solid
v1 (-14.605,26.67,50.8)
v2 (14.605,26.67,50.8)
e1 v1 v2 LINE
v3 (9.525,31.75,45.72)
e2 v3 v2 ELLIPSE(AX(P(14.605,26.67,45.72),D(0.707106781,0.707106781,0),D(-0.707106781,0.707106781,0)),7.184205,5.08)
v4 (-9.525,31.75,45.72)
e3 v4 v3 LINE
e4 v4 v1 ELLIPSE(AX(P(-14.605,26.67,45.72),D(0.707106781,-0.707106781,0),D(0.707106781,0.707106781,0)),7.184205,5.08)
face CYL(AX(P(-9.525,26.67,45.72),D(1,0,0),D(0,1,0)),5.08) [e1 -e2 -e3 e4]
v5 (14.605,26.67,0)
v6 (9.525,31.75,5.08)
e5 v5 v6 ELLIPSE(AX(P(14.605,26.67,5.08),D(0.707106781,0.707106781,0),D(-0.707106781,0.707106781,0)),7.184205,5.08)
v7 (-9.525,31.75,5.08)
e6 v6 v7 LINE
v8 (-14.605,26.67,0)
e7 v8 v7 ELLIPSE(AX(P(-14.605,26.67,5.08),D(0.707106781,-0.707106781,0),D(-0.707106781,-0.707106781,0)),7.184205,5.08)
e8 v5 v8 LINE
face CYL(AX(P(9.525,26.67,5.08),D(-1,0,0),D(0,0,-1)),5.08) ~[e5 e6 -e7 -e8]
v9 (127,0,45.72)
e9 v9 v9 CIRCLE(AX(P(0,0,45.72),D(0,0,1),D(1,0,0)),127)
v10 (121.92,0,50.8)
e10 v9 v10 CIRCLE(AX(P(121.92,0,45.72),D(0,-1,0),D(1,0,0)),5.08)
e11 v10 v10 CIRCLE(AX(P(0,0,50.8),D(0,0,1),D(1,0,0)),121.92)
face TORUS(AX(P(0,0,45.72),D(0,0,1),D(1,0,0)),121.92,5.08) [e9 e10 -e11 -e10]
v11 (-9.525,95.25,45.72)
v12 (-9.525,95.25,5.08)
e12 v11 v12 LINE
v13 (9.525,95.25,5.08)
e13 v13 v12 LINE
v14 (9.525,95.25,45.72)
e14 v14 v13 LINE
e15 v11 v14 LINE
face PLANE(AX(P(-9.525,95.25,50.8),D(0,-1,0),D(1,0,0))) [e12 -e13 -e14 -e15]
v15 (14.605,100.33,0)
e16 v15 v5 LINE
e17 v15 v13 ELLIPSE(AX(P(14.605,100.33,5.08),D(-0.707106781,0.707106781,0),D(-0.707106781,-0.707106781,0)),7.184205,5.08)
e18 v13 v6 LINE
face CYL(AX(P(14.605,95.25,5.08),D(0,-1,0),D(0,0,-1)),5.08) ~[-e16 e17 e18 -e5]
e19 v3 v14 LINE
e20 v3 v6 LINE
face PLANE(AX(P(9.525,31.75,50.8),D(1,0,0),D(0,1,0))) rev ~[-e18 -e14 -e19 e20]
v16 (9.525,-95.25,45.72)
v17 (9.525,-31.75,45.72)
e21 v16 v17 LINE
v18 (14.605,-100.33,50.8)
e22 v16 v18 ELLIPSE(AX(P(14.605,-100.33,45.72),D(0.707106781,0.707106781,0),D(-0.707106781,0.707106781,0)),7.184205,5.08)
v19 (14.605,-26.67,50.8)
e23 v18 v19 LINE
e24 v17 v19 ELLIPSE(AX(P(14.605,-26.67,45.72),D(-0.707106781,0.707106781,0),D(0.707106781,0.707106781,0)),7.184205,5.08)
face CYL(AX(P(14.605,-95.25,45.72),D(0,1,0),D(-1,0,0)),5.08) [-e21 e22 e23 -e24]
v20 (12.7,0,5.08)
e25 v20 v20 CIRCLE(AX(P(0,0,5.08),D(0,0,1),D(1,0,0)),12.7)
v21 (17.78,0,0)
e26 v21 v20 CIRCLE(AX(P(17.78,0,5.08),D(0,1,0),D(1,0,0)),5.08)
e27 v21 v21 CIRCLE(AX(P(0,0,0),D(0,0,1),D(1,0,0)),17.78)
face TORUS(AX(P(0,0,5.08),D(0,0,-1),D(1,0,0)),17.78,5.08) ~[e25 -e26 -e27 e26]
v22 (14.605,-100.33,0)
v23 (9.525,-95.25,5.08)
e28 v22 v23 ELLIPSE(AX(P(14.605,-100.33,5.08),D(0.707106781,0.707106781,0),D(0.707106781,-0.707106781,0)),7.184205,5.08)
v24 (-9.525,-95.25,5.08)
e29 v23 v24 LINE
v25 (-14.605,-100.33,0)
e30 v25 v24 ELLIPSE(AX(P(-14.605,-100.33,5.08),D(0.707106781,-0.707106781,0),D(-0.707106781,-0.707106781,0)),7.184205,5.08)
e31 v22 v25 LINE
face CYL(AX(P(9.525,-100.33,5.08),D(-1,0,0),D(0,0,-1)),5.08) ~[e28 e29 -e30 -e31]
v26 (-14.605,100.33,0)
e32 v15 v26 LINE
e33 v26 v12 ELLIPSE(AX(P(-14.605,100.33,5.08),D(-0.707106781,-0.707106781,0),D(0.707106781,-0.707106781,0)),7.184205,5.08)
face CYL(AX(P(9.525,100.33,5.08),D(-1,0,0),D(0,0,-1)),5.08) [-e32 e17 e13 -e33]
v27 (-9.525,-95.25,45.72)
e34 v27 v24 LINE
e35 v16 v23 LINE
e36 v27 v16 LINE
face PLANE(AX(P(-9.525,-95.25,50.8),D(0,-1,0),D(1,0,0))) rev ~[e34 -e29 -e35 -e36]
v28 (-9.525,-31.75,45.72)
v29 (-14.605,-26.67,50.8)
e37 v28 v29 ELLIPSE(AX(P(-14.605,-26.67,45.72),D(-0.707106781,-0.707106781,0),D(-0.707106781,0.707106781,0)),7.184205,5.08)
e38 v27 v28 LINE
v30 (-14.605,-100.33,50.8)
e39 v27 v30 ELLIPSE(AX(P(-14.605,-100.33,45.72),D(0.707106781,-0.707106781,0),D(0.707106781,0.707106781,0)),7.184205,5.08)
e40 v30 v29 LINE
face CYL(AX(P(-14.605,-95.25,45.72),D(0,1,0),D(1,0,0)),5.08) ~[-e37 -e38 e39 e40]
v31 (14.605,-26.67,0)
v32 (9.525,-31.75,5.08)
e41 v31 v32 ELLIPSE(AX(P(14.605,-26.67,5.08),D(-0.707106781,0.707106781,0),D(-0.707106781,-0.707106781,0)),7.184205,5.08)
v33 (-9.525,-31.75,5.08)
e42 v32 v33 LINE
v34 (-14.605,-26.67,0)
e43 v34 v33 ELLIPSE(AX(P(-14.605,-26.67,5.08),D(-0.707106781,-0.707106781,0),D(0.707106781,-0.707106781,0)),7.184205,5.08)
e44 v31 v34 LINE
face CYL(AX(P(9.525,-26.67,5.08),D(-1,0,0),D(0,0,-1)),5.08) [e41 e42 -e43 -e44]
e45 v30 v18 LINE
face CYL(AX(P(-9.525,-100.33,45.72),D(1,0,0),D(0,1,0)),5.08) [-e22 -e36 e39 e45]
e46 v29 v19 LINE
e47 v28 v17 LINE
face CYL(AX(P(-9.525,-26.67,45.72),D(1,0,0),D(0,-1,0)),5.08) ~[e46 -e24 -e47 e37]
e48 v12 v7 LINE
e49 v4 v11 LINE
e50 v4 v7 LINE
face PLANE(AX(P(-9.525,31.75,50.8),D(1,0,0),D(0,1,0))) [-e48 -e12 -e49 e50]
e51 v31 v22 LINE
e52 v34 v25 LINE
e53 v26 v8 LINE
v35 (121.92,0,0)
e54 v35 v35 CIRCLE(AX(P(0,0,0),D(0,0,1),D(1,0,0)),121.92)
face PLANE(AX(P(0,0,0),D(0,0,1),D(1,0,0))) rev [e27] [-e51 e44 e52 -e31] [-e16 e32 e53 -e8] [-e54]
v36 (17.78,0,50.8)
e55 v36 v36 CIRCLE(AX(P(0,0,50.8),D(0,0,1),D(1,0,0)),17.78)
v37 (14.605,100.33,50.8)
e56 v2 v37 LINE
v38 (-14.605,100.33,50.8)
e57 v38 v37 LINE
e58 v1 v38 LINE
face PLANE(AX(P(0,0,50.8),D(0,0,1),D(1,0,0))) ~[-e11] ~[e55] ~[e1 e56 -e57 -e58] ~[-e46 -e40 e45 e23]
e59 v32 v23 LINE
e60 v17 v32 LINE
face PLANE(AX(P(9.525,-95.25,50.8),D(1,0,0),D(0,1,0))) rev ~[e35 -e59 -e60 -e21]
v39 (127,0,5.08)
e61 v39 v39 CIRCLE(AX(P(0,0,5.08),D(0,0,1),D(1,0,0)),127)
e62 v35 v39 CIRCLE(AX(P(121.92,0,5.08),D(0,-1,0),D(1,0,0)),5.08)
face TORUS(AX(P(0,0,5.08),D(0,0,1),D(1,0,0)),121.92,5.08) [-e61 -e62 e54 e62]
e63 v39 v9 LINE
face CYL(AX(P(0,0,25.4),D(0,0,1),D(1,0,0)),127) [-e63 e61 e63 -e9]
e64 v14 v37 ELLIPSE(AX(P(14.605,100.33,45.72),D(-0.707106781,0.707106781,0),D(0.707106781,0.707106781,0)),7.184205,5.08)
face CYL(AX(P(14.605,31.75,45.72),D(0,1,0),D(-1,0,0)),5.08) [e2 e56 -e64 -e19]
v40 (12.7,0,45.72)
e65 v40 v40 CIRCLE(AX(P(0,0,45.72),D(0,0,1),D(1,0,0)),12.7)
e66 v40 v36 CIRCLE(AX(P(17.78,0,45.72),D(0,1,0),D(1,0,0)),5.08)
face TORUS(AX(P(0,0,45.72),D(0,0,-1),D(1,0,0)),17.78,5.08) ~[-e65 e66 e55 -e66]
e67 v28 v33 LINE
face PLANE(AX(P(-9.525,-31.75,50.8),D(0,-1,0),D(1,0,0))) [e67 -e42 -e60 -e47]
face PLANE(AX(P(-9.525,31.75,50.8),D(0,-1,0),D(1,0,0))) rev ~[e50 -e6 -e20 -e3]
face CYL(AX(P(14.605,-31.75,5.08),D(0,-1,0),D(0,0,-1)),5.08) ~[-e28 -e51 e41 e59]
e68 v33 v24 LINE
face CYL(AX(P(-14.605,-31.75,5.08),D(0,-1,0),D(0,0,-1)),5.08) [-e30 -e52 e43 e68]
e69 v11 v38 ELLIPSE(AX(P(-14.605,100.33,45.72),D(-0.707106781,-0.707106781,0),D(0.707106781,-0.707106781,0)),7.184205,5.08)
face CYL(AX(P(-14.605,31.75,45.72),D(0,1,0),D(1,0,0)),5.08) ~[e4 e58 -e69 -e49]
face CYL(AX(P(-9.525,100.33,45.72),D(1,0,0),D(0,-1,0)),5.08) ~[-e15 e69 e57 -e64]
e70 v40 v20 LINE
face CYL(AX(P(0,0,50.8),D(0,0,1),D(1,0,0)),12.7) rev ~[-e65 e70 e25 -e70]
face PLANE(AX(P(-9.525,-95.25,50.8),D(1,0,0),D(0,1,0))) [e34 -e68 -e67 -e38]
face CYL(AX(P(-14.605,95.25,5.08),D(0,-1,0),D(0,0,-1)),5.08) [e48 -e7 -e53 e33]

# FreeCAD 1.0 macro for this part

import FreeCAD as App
import Part
import Sketcher

V = App.Vector
Q = App.Units.Quantity


def edges_at(feature, points):
    """Names of the edges that pass closest to the given points."""
    edges = feature.Shape.Edges
    near = lambda p: min(range(len(edges)), key=lambda i: edges[i].distToShape(Part.Vertex(*p))[0])
    return sorted({f"Edge{near(p) + 1}" for p in points})


def add_polygon(sketch, points):
    """Adds a closed chain of lines whose ends are joined by coincident constraints."""
    first, n = sketch.GeometryCount, len(points)
    for a, b in zip(points, points[1:] + points[:1]):
        sketch.addGeometry(Part.LineSegment(App.Vector(*a, 0), App.Vector(*b, 0)), False)
    for i in range(n):
        sketch.addConstraint(Sketcher.Constraint("Coincident", first + i, 2, first + (i + 1) % n, 1))

doc = App.newDocument("Part")
body = doc.addObject("PartDesign::Body", "Body")

# Sketch on XZ plane
sketch1 = doc.addObject("Sketcher::SketchObject", "Sketch")
body.addObject(sketch1)
sketch1.AttachmentSupport = (doc.XZ_Plane, [""])
sketch1.MapMode = "FlatFace"
add_polygon(sketch1, [(0, 50.8), (0, 0), (127, 0), (127, 50.8)])  # lines 0-3
sketch1.addConstraint([
    Sketcher.Constraint("Vertical", 0),
    Sketcher.Constraint("Horizontal", 1),
    Sketcher.Constraint("Vertical", 2),
    Sketcher.Constraint("Horizontal", 3),
    Sketcher.Constraint("Coincident", 0, 2, -1, 1),
    Sketcher.Constraint("DistanceX", 1, 1, 1, 2, Q("5 in")),
    Sketcher.Constraint("DistanceY", 0, 2, 0, 1, Q("2 in")),
])
revolution = doc.addObject("PartDesign::Revolution", "Revolution")
body.addObject(revolution)
revolution.Profile = sketch1
revolution.ReferenceAxis = (sketch1, ["V_Axis"])
revolution.Angle = 360

# Sketch on XY plane
sketch2 = doc.addObject("Sketcher::SketchObject", "Sketch001")
body.addObject(sketch2)
sketch2.AttachmentSupport = (doc.XY_Plane, [""])
sketch2.MapMode = "FlatFace"
sketch2.AttachmentOffset = App.Placement(V(0, 0, 2 * 25.4), App.Rotation())
add_polygon(sketch2, [(-9.525, 95.25), (-9.525, 31.75), (9.525, 31.75), (9.525, 95.25)])  # lines 0-3
add_polygon(sketch2, [(-9.525, -31.75), (-9.525, -95.25), (9.525, -95.25), (9.525, -31.75)])  # lines 4-7
sketch2.addConstraint([
    Sketcher.Constraint("Vertical", 0),
    Sketcher.Constraint("Horizontal", 1),
    Sketcher.Constraint("Vertical", 2),
    Sketcher.Constraint("Horizontal", 3),
    Sketcher.Constraint("Vertical", 4),
    Sketcher.Constraint("Horizontal", 5),
    Sketcher.Constraint("Vertical", 6),
    Sketcher.Constraint("Horizontal", 7),
    Sketcher.Constraint("Symmetric", 2, 2, 4, 2, -1, 1),
    Sketcher.Constraint("Symmetric", 0, 2, 6, 2, -1, 1),
    Sketcher.Constraint("Vertical", 3, 2, 4, 2),
    Sketcher.Constraint("DistanceY", 0, 2, 0, 1, Q("2.5 in")),
    Sketcher.Constraint("DistanceY", 4, 2, 0, 2, Q("5 in")),
    Sketcher.Constraint("DistanceX", 1, 1, 1, 2, Q("0.75 in")),
])
pocket1 = doc.addObject("PartDesign::Pocket", "Pocket")
body.addObject(pocket1)
pocket1.Profile = sketch2
pocket1.Type = "ThroughAll"

# Sketch on XY plane
sketch3 = doc.addObject("Sketcher::SketchObject", "Sketch002")
body.addObject(sketch3)
sketch3.AttachmentSupport = (doc.XY_Plane, [""])
sketch3.MapMode = "FlatFace"
sketch3.AttachmentOffset = App.Placement(V(0, 0, 2 * 25.4), App.Rotation())
sketch3.addGeometry(Part.Circle(V(0, 0, 0), V(0, 0, 1), 12.7), False)
sketch3.addConstraint([
    Sketcher.Constraint("Coincident", 0, 3, -1, 1),
    Sketcher.Constraint("Diameter", 0, Q("1 in")),
])
pocket2 = doc.addObject("PartDesign::Pocket", "Pocket001")
body.addObject(pocket2)
pocket2.Profile = sketch3
pocket2.Type = "ThroughAll"
doc.recompute()

fillet = doc.addObject("PartDesign::Fillet", "Fillet")
body.addObject(fillet)
fillet.Base = (pocket2, edges_at(pocket2, [
    (-127, 0, 50.8),
    (9.525, -63.5, 50.8),
    (0, -95.25, 50.8),
    (-9.525, -63.5, 50.8),
    (0, -31.75, 50.8),
    (-12.7, 0, 50.8),
    (0, 95.25, 50.8),
    (9.525, 63.5, 50.8),
    (-9.525, 63.5, 50.8),
    (0, 31.75, 50.8),
    (-127, 0, 0),
    (9.525, -63.5, 0),
    (0, -95.25, 0),
    (-9.525, -63.5, 0),
    (0, -31.75, 0),
    (-12.7, 0, 0),
    (0, 31.75, 0),
    (9.525, 63.5, 0),
    (-9.525, 63.5, 0),
    (0, 95.25, 0),
]))
fillet.Radius = Q("0.2 in")

doc.recompute()
